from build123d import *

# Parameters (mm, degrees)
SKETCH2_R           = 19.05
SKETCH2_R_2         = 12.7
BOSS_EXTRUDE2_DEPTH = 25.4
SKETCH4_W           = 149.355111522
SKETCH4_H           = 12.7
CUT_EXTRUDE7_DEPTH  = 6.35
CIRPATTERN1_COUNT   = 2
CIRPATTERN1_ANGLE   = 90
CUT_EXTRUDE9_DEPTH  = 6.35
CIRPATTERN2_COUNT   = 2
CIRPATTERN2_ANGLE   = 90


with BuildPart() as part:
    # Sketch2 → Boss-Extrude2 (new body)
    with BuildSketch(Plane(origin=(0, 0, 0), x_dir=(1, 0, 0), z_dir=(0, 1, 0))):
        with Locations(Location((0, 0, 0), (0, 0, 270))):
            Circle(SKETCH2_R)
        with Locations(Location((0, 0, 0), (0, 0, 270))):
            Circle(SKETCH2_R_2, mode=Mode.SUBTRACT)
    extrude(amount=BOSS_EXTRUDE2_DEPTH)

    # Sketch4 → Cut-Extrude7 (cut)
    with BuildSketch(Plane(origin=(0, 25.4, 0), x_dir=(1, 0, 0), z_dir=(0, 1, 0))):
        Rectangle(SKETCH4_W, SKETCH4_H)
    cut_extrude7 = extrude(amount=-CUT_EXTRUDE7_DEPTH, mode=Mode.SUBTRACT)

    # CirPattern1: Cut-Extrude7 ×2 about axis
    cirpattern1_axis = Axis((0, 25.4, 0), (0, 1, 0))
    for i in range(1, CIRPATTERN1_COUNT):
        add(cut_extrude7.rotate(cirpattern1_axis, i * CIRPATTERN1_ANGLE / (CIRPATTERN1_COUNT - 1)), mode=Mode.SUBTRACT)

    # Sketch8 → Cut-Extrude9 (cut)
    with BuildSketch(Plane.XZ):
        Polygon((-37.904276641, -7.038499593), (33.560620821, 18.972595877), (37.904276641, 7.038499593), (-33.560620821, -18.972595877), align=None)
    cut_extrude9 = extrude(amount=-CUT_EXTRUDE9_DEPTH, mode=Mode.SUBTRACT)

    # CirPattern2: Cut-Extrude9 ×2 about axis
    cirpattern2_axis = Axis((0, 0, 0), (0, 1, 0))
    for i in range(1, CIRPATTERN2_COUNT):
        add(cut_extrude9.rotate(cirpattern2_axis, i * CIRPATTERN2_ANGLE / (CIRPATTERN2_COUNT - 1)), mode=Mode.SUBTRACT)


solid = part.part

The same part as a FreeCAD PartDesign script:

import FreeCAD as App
import Part
import Sketcher

V = App.Vector
Q = App.Units.Quantity

doc = App.newDocument("Part")
body = doc.addObject("PartDesign::Body", "Body")

# Sketch on XZ plane
sketch1 = body.newObject("Sketcher::SketchObject", "Sketch")
sketch1.AttachmentSupport = (doc.getObject("XZ_Plane"), [""])
sketch1.MapMode = "FlatFace"
sketch1.addGeometry(Part.Circle(V(0, 0, 0), V(0, 0, 1), 19.05), False)
sketch1.addGeometry(Part.Circle(V(0, 0, 0), V(0, 0, 1), 12.7), False)
sketch1.addConstraint(Sketcher.Constraint("Coincident", 0, 3, -1, 1))
sketch1.addConstraint(Sketcher.Constraint("Coincident", 1, 3, -1, 1))
sketch1.addConstraint(Sketcher.Constraint("Diameter", 1, Q("1 in")))
sketch1.addConstraint(Sketcher.Constraint("Diameter", 0, Q("1.5 in")))
pad1 = body.newObject("PartDesign::Pad", "Pad")
pad1.Profile = sketch1
pad1.Length = Q("1 in")
pad1.Reversed = True

# Sketch on XZ plane
sketch2 = body.newObject("Sketcher::SketchObject", "Sketch001")
sketch2.AttachmentSupport = (doc.getObject("XZ_Plane"), [""])
sketch2.MapMode = "FlatFace"
sketch2.AttachmentOffset = App.Placement(V(0, 0, -1 * 25.4), App.Rotation())
sketch2.addGeometry(Part.LineSegment(V(-74.677556, -6.35, 0), V(-74.677556, 6.35, 0)), False)
sketch2.addGeometry(Part.LineSegment(V(-74.677556, 6.35, 0), V(74.677556, 6.35, 0)), False)
sketch2.addGeometry(Part.LineSegment(V(74.677556, 6.35, 0), V(74.677556, -6.35, 0)), False)
sketch2.addGeometry(Part.LineSegment(V(74.677556, -6.35, 0), V(-74.677556, -6.35, 0)), False)
sketch2.addConstraint(Sketcher.Constraint("Coincident", 0, 2, 1, 1))
sketch2.addConstraint(Sketcher.Constraint("Coincident", 1, 2, 2, 1))
sketch2.addConstraint(Sketcher.Constraint("Coincident", 2, 2, 3, 1))
sketch2.addConstraint(Sketcher.Constraint("Coincident", 3, 2, 0, 1))
sketch2.addConstraint(Sketcher.Constraint("Vertical", 0))
sketch2.addConstraint(Sketcher.Constraint("Horizontal", 1))
sketch2.addConstraint(Sketcher.Constraint("Vertical", 2))
sketch2.addConstraint(Sketcher.Constraint("Horizontal", 3))
sketch2.addConstraint(Sketcher.Constraint("Symmetric", 0, 2, 2, 2, -1, 1))
sketch2.addConstraint(Sketcher.Constraint("DistanceY", 0, 1, 0, 2, Q("0.5 in")))
sketch2.addConstraint(Sketcher.Constraint("DistanceX", 1, 1, 1, 2, Q("149.355112 mm")))
pocket1 = body.newObject("PartDesign::Pocket", "Pocket")
pocket1.Profile = sketch2
pocket1.Length = Q("0.25 in")
pocket1.Reversed = True
doc.recompute()

polarpattern = body.newObject("PartDesign::PolarPattern", "PolarPattern")
polarpattern.Originals = [pocket1]
polarpattern.Axis = (doc.getObject("Y_Axis"), [""])
polarpattern.Angle = 90
polarpattern.Occurrences = 2
body.Tip = polarpattern

# Sketch on XZ plane
sketch3 = body.newObject("Sketcher::SketchObject", "Sketch002")
sketch3.AttachmentSupport = (doc.getObject("XZ_Plane"), [""])
sketch3.MapMode = "FlatFace"
sketch3.addGeometry(Part.LineSegment(V(33.560621, 18.972596, 0), V(-37.904277, -7.0385, 0)), False)
sketch3.addGeometry(Part.LineSegment(V(-37.904277, -7.0385, 0), V(-33.560621, -18.972596, 0)), False)
sketch3.addGeometry(Part.LineSegment(V(-33.560621, -18.972596, 0), V(37.904277, 7.0385, 0)), False)
sketch3.addGeometry(Part.LineSegment(V(37.904277, 7.0385, 0), V(33.560621, 18.972596, 0)), False)
sketch3.addConstraint(Sketcher.Constraint("Coincident", 0, 2, 1, 1))
sketch3.addConstraint(Sketcher.Constraint("Coincident", 1, 2, 2, 1))
sketch3.addConstraint(Sketcher.Constraint("Coincident", 2, 2, 3, 1))
sketch3.addConstraint(Sketcher.Constraint("Coincident", 3, 2, 0, 1))
sketch3.addConstraint(Sketcher.Constraint("Symmetric", 0, 2, 2, 2, -1, 1))
sketch3.addConstraint(Sketcher.Constraint("Symmetric", 1, 2, 3, 2, -1, 1))
sketch3.addConstraint(Sketcher.Constraint("Perpendicular", 0, 1))
sketch3.addConstraint(Sketcher.Constraint("Angle", 0, Q("-160 deg")))
sketch3.addConstraint(Sketcher.Constraint("Distance", 1, Q("0.5 in")))
sketch3.addConstraint(Sketcher.Constraint("DistanceY", 0, 2, -1, 1, Q("7.0385 mm")))
pocket2 = body.newObject("PartDesign::Pocket", "Pocket001")
pocket2.Profile = sketch3
pocket2.Length = Q("0.25 in")
doc.recompute()

polarpattern2 = body.newObject("PartDesign::PolarPattern", "PolarPattern001")
polarpattern2.Originals = [pocket2]
polarpattern2.Axis = (doc.getObject("Y_Axis"), [""])
polarpattern2.Angle = 90
polarpattern2.Occurrences = 2
body.Tip = polarpattern2

doc.recompute()
